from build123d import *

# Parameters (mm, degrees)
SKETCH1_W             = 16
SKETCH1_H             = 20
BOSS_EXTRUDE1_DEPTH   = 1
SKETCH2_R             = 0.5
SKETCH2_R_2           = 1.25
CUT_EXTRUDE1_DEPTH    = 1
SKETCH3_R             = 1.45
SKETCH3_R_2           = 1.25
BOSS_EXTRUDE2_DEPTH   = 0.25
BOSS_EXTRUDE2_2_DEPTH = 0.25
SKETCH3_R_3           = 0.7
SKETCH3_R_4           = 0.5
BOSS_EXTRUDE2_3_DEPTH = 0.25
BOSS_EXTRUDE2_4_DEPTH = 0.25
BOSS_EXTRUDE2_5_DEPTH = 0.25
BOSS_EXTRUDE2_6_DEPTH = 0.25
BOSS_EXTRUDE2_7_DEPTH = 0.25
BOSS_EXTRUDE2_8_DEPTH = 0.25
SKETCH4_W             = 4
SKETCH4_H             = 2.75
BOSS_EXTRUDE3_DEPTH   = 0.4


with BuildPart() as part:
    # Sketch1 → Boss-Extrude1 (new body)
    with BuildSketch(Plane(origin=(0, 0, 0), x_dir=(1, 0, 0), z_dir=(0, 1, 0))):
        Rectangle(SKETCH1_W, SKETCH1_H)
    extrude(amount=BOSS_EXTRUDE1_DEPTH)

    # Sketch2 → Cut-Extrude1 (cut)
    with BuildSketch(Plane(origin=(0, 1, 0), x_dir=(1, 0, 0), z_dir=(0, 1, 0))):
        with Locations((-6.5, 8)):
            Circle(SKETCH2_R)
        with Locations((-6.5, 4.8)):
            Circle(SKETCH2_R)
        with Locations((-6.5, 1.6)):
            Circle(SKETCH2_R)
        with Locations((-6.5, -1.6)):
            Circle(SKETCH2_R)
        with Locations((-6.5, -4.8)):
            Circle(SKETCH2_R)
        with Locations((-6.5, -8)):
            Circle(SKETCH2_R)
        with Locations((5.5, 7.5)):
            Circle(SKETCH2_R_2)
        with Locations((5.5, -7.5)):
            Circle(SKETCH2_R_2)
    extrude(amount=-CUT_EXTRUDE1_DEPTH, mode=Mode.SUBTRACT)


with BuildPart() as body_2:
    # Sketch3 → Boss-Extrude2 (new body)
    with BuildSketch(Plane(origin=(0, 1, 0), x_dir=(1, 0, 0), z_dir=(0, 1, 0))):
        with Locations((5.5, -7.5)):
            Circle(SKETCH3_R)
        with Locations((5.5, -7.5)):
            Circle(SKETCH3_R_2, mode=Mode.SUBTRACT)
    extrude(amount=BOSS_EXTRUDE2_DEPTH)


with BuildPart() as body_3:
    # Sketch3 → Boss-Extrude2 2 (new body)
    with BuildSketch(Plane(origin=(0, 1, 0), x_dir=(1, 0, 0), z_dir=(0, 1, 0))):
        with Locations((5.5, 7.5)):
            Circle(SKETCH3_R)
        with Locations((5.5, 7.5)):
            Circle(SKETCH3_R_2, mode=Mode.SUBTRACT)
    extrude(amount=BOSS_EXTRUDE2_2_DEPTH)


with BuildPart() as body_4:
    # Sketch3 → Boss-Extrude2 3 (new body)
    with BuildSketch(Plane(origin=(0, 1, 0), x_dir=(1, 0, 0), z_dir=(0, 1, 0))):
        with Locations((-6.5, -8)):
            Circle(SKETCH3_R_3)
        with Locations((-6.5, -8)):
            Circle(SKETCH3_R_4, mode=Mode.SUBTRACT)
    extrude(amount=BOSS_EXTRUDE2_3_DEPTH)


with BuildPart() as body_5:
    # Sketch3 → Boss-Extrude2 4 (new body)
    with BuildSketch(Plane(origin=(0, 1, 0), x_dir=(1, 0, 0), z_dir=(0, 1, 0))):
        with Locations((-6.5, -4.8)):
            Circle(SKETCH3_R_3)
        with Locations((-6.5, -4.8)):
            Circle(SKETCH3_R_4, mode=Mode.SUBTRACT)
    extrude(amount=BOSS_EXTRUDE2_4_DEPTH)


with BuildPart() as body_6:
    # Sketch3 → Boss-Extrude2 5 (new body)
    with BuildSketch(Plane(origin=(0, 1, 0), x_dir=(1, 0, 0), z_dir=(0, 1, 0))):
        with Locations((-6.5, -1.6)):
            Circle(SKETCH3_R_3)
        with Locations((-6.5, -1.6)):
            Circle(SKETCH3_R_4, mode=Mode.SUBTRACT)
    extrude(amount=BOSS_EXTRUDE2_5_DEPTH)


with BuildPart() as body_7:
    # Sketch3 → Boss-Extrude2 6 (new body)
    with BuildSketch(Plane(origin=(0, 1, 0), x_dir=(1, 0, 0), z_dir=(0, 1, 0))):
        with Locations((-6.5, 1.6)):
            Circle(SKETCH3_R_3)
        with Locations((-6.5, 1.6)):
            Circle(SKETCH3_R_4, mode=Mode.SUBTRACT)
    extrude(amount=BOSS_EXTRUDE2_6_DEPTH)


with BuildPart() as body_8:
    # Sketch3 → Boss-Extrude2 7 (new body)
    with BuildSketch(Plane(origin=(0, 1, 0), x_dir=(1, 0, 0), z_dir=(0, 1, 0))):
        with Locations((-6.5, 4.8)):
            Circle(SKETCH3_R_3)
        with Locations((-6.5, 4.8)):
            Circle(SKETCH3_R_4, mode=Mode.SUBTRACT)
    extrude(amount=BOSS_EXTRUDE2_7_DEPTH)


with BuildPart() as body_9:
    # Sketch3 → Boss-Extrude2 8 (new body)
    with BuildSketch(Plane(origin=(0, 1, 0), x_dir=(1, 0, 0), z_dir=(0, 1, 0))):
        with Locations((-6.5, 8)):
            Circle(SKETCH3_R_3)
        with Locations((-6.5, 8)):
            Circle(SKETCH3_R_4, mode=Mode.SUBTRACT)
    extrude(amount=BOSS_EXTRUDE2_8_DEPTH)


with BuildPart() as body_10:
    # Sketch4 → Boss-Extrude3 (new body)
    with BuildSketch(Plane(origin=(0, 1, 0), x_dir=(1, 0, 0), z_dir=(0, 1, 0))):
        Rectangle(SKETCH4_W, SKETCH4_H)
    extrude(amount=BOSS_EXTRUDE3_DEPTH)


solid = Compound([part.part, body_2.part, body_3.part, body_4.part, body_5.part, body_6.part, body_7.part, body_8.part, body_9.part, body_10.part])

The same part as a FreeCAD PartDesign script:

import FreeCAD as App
import Part
import Sketcher

V = App.Vector
Q = App.Units.Quantity


def add_polygon(sketch, points):
    """Adds a closed chain of lines whose ends are joined by coincident constraints."""
    first, n = sketch.GeometryCount, len(points)
    for a, b in zip(points, points[1:] + points[:1]):
        sketch.addGeometry(Part.LineSegment(App.Vector(*a, 0), App.Vector(*b, 0)), False)
    for i in range(n):
        sketch.addConstraint(Sketcher.Constraint("Coincident", first + i, 2, first + (i + 1) % n, 1))

doc = App.newDocument("Part")
body = doc.addObject("PartDesign::Body", "Body")

sketch1 = body.newObject("Sketcher::SketchObject", "Sketch")
sketch1.AttachmentSupport = (doc.getObject("XZ_Plane"), [""])
sketch1.MapMode = "FlatFace"
add_polygon(sketch1, [(-8, -10), (-8, 10), (8, 10), (8, -10)])
sketch1.addConstraint(Sketcher.Constraint("Vertical", 0))
sketch1.addConstraint(Sketcher.Constraint("Horizontal", 1))
sketch1.addConstraint(Sketcher.Constraint("Vertical", 2))
sketch1.addConstraint(Sketcher.Constraint("Horizontal", 3))
sketch1.addConstraint(Sketcher.Constraint("Symmetric", 0, 2, 2, 2, -1, 1))
sketch1.addConstraint(Sketcher.Constraint("DistanceX", 1, 1, 1, 2, Q("16 mm")))
sketch1.addConstraint(Sketcher.Constraint("DistanceY", 0, 1, 0, 2, Q("20 mm")))
pad1 = body.newObject("PartDesign::Pad", "Pad")
pad1.Profile = sketch1
pad1.Length = 1
pad1.Reversed = True

sketch2 = body.newObject("Sketcher::SketchObject", "Sketch001")
sketch2.AttachmentSupport = (doc.getObject("XZ_Plane"), [""])
sketch2.MapMode = "FlatFace"
sketch2.AttachmentOffset = App.Placement(V(0, 0, -1), App.Rotation())
sketch2.addGeometry(Part.Circle(V(-6.5, -8, 0), V(0, 0, 1), 0.5), False)
sketch2.addGeometry(Part.Circle(V(-6.5, -4.8, 0), V(0, 0, 1), 0.5), False)
sketch2.addGeometry(Part.Circle(V(-6.5, -1.6, 0), V(0, 0, 1), 0.5), False)
sketch2.addGeometry(Part.Circle(V(-6.5, 1.6, 0), V(0, 0, 1), 0.5), False)
sketch2.addGeometry(Part.Circle(V(-6.5, 4.8, 0), V(0, 0, 1), 0.5), False)
sketch2.addGeometry(Part.Circle(V(-6.5, 8, 0), V(0, 0, 1), 0.5), False)
sketch2.addGeometry(Part.Circle(V(5.5, -7.5, 0), V(0, 0, 1), 1.2), False)
sketch2.addGeometry(Part.Circle(V(5.5, 7.5, 0), V(0, 0, 1), 1.2), False)
sketch2.addConstraint(Sketcher.Constraint("Equal", 0, 1))
sketch2.addConstraint(Sketcher.Constraint("Equal", 1, 2))
sketch2.addConstraint(Sketcher.Constraint("Equal", 2, 3))
sketch2.addConstraint(Sketcher.Constraint("Equal", 3, 4))
sketch2.addConstraint(Sketcher.Constraint("Equal", 4, 5))
sketch2.addConstraint(Sketcher.Constraint("Equal", 6, 7))
sketch2.addConstraint(Sketcher.Constraint("Symmetric", 2, 3, 3, 3, -1))
sketch2.addConstraint(Sketcher.Constraint("Symmetric", 1, 3, 4, 3, -1))
sketch2.addConstraint(Sketcher.Constraint("Symmetric", 0, 3, 5, 3, -1))
sketch2.addConstraint(Sketcher.Constraint("Symmetric", 6, 3, 7, 3, -1))
sketch2.addConstraint(Sketcher.Constraint("Vertical", 0, 3, 1, 3))
sketch2.addConstraint(Sketcher.Constraint("Vertical", 1, 3, 2, 3))
sketch2.addConstraint(Sketcher.Constraint("Diameter", 0, Q("1 mm")))
sketch2.addConstraint(Sketcher.Constraint("Diameter", 6, Q("2.5 mm")))
sketch2.addConstraint(Sketcher.Constraint("DistanceY", 0, 3, -1, 1, Q("8 mm")))
sketch2.addConstraint(Sketcher.Constraint("DistanceX", 0, 3, 6, 3, Q("12 mm")))
sketch2.addConstraint(Sketcher.Constraint("DistanceY", 6, 3, 7, 3, Q("15 mm")))
sketch2.addConstraint(Sketcher.Constraint("DistanceX", 0, 3, -1, 1, Q("6.5 mm")))
sketch2.addConstraint(Sketcher.Constraint("DistanceY", 1, 3, -1, 1, Q("4.8 mm")))
sketch2.addConstraint(Sketcher.Constraint("DistanceY", 2, 3, -1, 1, Q("1.6 mm")))
pocket1 = body.newObject("PartDesign::Pocket", "Pocket")
pocket1.Profile = sketch2
pocket1.Length = 1
pocket1.Reversed = True
body2 = doc.addObject("PartDesign::Body", "Body001")

sketch3 = body2.newObject("Sketcher::SketchObject", "Sketch002")
sketch3.AttachmentSupport = (doc.getObject("XZ_Plane001"), [""])
sketch3.MapMode = "FlatFace"
sketch3.AttachmentOffset = App.Placement(V(0, 0, -1), App.Rotation())
sketch3.addGeometry(Part.Circle(V(5.5, 7.5, 0), V(0, 0, 1), 1.4), False)
sketch3.addGeometry(Part.Circle(V(5.5, 7.5, 0), V(0, 0, 1), 1.2), False)
sketch3.addConstraint(Sketcher.Constraint("Coincident", 1, 3, 0, 3))
sketch3.addConstraint(Sketcher.Constraint("Diameter", 0, Q("2.9 mm")))
sketch3.addConstraint(Sketcher.Constraint("Diameter", 1, Q("2.5 mm")))
sketch3.addConstraint(Sketcher.Constraint("DistanceX", -1, 1, 0, 3, Q("5.5 mm")))
sketch3.addConstraint(Sketcher.Constraint("DistanceY", -1, 1, 0, 3, Q("7.5 mm")))
pad2 = body2.newObject("PartDesign::Pad", "Pad001")
pad2.Profile = sketch3
pad2.Length = 0.25
pad2.Reversed = True
body3 = doc.addObject("PartDesign::Body", "Body002")

sketch4 = body3.newObject("Sketcher::SketchObject", "Sketch003")
sketch4.AttachmentSupport = (doc.getObject("XZ_Plane002"), [""])
sketch4.MapMode = "FlatFace"
sketch4.AttachmentOffset = App.Placement(V(0, 0, -1), App.Rotation())
sketch4.addGeometry(Part.Circle(V(5.5, -7.5, 0), V(0, 0, 1), 1.4), False)
sketch4.addGeometry(Part.Circle(V(5.5, -7.5, 0), V(0, 0, 1), 1.2), False)
sketch4.addConstraint(Sketcher.Constraint("Coincident", 1, 3, 0, 3))
sketch4.addConstraint(Sketcher.Constraint("Diameter", 0, Q("2.9 mm")))
sketch4.addConstraint(Sketcher.Constraint("Diameter", 1, Q("2.5 mm")))
sketch4.addConstraint(Sketcher.Constraint("DistanceX", -1, 1, 0, 3, Q("5.5 mm")))
sketch4.addConstraint(Sketcher.Constraint("DistanceY", 0, 3, -1, 1, Q("7.5 mm")))
pad3 = body3.newObject("PartDesign::Pad", "Pad002")
pad3.Profile = sketch4
pad3.Length = 0.25
pad3.Reversed = True
body4 = doc.addObject("PartDesign::Body", "Body003")

sketch5 = body4.newObject("Sketcher::SketchObject", "Sketch004")
sketch5.AttachmentSupport = (doc.getObject("XZ_Plane003"), [""])
sketch5.MapMode = "FlatFace"
sketch5.AttachmentOffset = App.Placement(V(0, 0, -1), App.Rotation())
sketch5.addGeometry(Part.Circle(V(-6.5, 8, 0), V(0, 0, 1), 0.7), False)
sketch5.addGeometry(Part.Circle(V(-6.5, 8, 0), V(0, 0, 1), 0.5), False)
sketch5.addConstraint(Sketcher.Constraint("Coincident", 1, 3, 0, 3))
sketch5.addConstraint(Sketcher.Constraint("Diameter", 1, Q("1 mm")))
sketch5.addConstraint(Sketcher.Constraint("Diameter", 0, Q("1.4 mm")))
sketch5.addConstraint(Sketcher.Constraint("DistanceY", -1, 1, 0, 3, Q("8 mm")))
sketch5.addConstraint(Sketcher.Constraint("DistanceX", 0, 3, -1, 1, Q("6.5 mm")))
pad4 = body4.newObject("PartDesign::Pad", "Pad003")
pad4.Profile = sketch5
pad4.Length = 0.25
pad4.Reversed = True
body5 = doc.addObject("PartDesign::Body", "Body004")

sketch6 = body5.newObject("Sketcher::SketchObject", "Sketch005")
sketch6.AttachmentSupport = (doc.getObject("XZ_Plane004"), [""])
sketch6.MapMode = "FlatFace"
sketch6.AttachmentOffset = App.Placement(V(0, 0, -1), App.Rotation())
sketch6.addGeometry(Part.Circle(V(-6.5, 4.8, 0), V(0, 0, 1), 0.7), False)
sketch6.addGeometry(Part.Circle(V(-6.5, 4.8, 0), V(0, 0, 1), 0.5), False)
sketch6.addConstraint(Sketcher.Constraint("Coincident", 1, 3, 0, 3))
sketch6.addConstraint(Sketcher.Constraint("Diameter", 1, Q("1 mm")))
sketch6.addConstraint(Sketcher.Constraint("Diameter", 0, Q("1.4 mm")))
sketch6.addConstraint(Sketcher.Constraint("DistanceX", 0, 3, -1, 1, Q("6.5 mm")))
sketch6.addConstraint(Sketcher.Constraint("DistanceY", -1, 1, 0, 3, Q("4.8 mm")))
pad5 = body5.newObject("PartDesign::Pad", "Pad004")
pad5.Profile = sketch6
pad5.Length = 0.25
pad5.Reversed = True
body6 = doc.addObject("PartDesign::Body", "Body005")

sketch7 = body6.newObject("Sketcher::SketchObject", "Sketch006")
sketch7.AttachmentSupport = (doc.getObject("XZ_Plane005"), [""])
sketch7.MapMode = "FlatFace"
sketch7.AttachmentOffset = App.Placement(V(0, 0, -1), App.Rotation())
sketch7.addGeometry(Part.Circle(V(-6.5, 1.6, 0), V(0, 0, 1), 0.7), False)
sketch7.addGeometry(Part.Circle(V(-6.5, 1.6, 0), V(0, 0, 1), 0.5), False)
sketch7.addConstraint(Sketcher.Constraint("Coincident", 1, 3, 0, 3))
sketch7.addConstraint(Sketcher.Constraint("Diameter", 1, Q("1 mm")))
sketch7.addConstraint(Sketcher.Constraint("Diameter", 0, Q("1.4 mm")))
sketch7.addConstraint(Sketcher.Constraint("DistanceX", 0, 3, -1, 1, Q("6.5 mm")))
sketch7.addConstraint(Sketcher.Constraint("DistanceY", -1, 1, 0, 3, Q("1.6 mm")))
pad6 = body6.newObject("PartDesign::Pad", "Pad005")
pad6.Profile = sketch7
pad6.Length = 0.25
pad6.Reversed = True
body7 = doc.addObject("PartDesign::Body", "Body006")

sketch8 = body7.newObject("Sketcher::SketchObject", "Sketch007")
sketch8.AttachmentSupport = (doc.getObject("XZ_Plane006"), [""])
sketch8.MapMode = "FlatFace"
sketch8.AttachmentOffset = App.Placement(V(0, 0, -1), App.Rotation())
sketch8.addGeometry(Part.Circle(V(-6.5, -1.6, 0), V(0, 0, 1), 0.7), False)
sketch8.addGeometry(Part.Circle(V(-6.5, -1.6, 0), V(0, 0, 1), 0.5), False)
sketch8.addConstraint(Sketcher.Constraint("Coincident", 1, 3, 0, 3))
sketch8.addConstraint(Sketcher.Constraint("Diameter", 1, Q("1 mm")))
sketch8.addConstraint(Sketcher.Constraint("Diameter", 0, Q("1.4 mm")))
sketch8.addConstraint(Sketcher.Constraint("DistanceX", 0, 3, -1, 1, Q("6.5 mm")))
sketch8.addConstraint(Sketcher.Constraint("DistanceY", 0, 3, -1, 1, Q("1.6 mm")))
pad7 = body7.newObject("PartDesign::Pad", "Pad006")
pad7.Profile = sketch8
pad7.Length = 0.25
pad7.Reversed = True
body8 = doc.addObject("PartDesign::Body", "Body007")

sketch9 = body8.newObject("Sketcher::SketchObject", "Sketch008")
sketch9.AttachmentSupport = (doc.getObject("XZ_Plane007"), [""])
sketch9.MapMode = "FlatFace"
sketch9.AttachmentOffset = App.Placement(V(0, 0, -1), App.Rotation())
sketch9.addGeometry(Part.Circle(V(-6.5, -4.8, 0), V(0, 0, 1), 0.7), False)
sketch9.addGeometry(Part.Circle(V(-6.5, -4.8, 0), V(0, 0, 1), 0.5), False)
sketch9.addConstraint(Sketcher.Constraint("Coincident", 1, 3, 0, 3))
sketch9.addConstraint(Sketcher.Constraint("Diameter", 1, Q("1 mm")))
sketch9.addConstraint(Sketcher.Constraint("Diameter", 0, Q("1.4 mm")))
sketch9.addConstraint(Sketcher.Constraint("DistanceX", 0, 3, -1, 1, Q("6.5 mm")))
sketch9.addConstraint(Sketcher.Constraint("DistanceY", 0, 3, -1, 1, Q("4.8 mm")))
pad8 = body8.newObject("PartDesign::Pad", "Pad007")
pad8.Profile = sketch9
pad8.Length = 0.25
pad8.Reversed = True
body9 = doc.addObject("PartDesign::Body", "Body008")

sketch10 = body9.newObject("Sketcher::SketchObject", "Sketch009")
sketch10.AttachmentSupport = (doc.getObject("XZ_Plane008"), [""])
sketch10.MapMode = "FlatFace"
sketch10.AttachmentOffset = App.Placement(V(0, 0, -1), App.Rotation())
sketch10.addGeometry(Part.Circle(V(-6.5, -8, 0), V(0, 0, 1), 0.7), False)
sketch10.addGeometry(Part.Circle(V(-6.5, -8, 0), V(0, 0, 1), 0.5), False)
sketch10.addConstraint(Sketcher.Constraint("Coincident", 1, 3, 0, 3))
sketch10.addConstraint(Sketcher.Constraint("Diameter", 1, Q("1 mm")))
sketch10.addConstraint(Sketcher.Constraint("Diameter", 0, Q("1.4 mm")))
sketch10.addConstraint(Sketcher.Constraint("DistanceY", 0, 3, -1, 1, Q("8 mm")))
sketch10.addConstraint(Sketcher.Constraint("DistanceX", 0, 3, -1, 1, Q("6.5 mm")))
pad9 = body9.newObject("PartDesign::Pad", "Pad008")
pad9.Profile = sketch10
pad9.Length = 0.25
pad9.Reversed = True
body10 = doc.addObject("PartDesign::Body", "Body009")

sketch11 = body10.newObject("Sketcher::SketchObject", "Sketch010")
sketch11.AttachmentSupport = (doc.getObject("XZ_Plane009"), [""])
sketch11.MapMode = "FlatFace"
sketch11.AttachmentOffset = App.Placement(V(0, 0, -1), App.Rotation())
add_polygon(sketch11, [(-2, -1.4), (-2, 1.4), (2, 1.4), (2, -1.4)])
sketch11.addConstraint(Sketcher.Constraint("Vertical", 0))
sketch11.addConstraint(Sketcher.Constraint("Horizontal", 1))
sketch11.addConstraint(Sketcher.Constraint("Vertical", 2))
sketch11.addConstraint(Sketcher.Constraint("Horizontal", 3))
sketch11.addConstraint(Sketcher.Constraint("Symmetric", 0, 2, 2, 2, -1, 1))
sketch11.addConstraint(Sketcher.Constraint("DistanceX", 1, 1, 1, 2, Q("4 mm")))
sketch11.addConstraint(Sketcher.Constraint("DistanceY", 0, 1, 0, 2, Q("2.75 mm")))
pad10 = body10.newObject("PartDesign::Pad", "Pad009")
pad10.Profile = sketch11
pad10.Length = 0.4
pad10.Reversed = True

doc.recompute()
